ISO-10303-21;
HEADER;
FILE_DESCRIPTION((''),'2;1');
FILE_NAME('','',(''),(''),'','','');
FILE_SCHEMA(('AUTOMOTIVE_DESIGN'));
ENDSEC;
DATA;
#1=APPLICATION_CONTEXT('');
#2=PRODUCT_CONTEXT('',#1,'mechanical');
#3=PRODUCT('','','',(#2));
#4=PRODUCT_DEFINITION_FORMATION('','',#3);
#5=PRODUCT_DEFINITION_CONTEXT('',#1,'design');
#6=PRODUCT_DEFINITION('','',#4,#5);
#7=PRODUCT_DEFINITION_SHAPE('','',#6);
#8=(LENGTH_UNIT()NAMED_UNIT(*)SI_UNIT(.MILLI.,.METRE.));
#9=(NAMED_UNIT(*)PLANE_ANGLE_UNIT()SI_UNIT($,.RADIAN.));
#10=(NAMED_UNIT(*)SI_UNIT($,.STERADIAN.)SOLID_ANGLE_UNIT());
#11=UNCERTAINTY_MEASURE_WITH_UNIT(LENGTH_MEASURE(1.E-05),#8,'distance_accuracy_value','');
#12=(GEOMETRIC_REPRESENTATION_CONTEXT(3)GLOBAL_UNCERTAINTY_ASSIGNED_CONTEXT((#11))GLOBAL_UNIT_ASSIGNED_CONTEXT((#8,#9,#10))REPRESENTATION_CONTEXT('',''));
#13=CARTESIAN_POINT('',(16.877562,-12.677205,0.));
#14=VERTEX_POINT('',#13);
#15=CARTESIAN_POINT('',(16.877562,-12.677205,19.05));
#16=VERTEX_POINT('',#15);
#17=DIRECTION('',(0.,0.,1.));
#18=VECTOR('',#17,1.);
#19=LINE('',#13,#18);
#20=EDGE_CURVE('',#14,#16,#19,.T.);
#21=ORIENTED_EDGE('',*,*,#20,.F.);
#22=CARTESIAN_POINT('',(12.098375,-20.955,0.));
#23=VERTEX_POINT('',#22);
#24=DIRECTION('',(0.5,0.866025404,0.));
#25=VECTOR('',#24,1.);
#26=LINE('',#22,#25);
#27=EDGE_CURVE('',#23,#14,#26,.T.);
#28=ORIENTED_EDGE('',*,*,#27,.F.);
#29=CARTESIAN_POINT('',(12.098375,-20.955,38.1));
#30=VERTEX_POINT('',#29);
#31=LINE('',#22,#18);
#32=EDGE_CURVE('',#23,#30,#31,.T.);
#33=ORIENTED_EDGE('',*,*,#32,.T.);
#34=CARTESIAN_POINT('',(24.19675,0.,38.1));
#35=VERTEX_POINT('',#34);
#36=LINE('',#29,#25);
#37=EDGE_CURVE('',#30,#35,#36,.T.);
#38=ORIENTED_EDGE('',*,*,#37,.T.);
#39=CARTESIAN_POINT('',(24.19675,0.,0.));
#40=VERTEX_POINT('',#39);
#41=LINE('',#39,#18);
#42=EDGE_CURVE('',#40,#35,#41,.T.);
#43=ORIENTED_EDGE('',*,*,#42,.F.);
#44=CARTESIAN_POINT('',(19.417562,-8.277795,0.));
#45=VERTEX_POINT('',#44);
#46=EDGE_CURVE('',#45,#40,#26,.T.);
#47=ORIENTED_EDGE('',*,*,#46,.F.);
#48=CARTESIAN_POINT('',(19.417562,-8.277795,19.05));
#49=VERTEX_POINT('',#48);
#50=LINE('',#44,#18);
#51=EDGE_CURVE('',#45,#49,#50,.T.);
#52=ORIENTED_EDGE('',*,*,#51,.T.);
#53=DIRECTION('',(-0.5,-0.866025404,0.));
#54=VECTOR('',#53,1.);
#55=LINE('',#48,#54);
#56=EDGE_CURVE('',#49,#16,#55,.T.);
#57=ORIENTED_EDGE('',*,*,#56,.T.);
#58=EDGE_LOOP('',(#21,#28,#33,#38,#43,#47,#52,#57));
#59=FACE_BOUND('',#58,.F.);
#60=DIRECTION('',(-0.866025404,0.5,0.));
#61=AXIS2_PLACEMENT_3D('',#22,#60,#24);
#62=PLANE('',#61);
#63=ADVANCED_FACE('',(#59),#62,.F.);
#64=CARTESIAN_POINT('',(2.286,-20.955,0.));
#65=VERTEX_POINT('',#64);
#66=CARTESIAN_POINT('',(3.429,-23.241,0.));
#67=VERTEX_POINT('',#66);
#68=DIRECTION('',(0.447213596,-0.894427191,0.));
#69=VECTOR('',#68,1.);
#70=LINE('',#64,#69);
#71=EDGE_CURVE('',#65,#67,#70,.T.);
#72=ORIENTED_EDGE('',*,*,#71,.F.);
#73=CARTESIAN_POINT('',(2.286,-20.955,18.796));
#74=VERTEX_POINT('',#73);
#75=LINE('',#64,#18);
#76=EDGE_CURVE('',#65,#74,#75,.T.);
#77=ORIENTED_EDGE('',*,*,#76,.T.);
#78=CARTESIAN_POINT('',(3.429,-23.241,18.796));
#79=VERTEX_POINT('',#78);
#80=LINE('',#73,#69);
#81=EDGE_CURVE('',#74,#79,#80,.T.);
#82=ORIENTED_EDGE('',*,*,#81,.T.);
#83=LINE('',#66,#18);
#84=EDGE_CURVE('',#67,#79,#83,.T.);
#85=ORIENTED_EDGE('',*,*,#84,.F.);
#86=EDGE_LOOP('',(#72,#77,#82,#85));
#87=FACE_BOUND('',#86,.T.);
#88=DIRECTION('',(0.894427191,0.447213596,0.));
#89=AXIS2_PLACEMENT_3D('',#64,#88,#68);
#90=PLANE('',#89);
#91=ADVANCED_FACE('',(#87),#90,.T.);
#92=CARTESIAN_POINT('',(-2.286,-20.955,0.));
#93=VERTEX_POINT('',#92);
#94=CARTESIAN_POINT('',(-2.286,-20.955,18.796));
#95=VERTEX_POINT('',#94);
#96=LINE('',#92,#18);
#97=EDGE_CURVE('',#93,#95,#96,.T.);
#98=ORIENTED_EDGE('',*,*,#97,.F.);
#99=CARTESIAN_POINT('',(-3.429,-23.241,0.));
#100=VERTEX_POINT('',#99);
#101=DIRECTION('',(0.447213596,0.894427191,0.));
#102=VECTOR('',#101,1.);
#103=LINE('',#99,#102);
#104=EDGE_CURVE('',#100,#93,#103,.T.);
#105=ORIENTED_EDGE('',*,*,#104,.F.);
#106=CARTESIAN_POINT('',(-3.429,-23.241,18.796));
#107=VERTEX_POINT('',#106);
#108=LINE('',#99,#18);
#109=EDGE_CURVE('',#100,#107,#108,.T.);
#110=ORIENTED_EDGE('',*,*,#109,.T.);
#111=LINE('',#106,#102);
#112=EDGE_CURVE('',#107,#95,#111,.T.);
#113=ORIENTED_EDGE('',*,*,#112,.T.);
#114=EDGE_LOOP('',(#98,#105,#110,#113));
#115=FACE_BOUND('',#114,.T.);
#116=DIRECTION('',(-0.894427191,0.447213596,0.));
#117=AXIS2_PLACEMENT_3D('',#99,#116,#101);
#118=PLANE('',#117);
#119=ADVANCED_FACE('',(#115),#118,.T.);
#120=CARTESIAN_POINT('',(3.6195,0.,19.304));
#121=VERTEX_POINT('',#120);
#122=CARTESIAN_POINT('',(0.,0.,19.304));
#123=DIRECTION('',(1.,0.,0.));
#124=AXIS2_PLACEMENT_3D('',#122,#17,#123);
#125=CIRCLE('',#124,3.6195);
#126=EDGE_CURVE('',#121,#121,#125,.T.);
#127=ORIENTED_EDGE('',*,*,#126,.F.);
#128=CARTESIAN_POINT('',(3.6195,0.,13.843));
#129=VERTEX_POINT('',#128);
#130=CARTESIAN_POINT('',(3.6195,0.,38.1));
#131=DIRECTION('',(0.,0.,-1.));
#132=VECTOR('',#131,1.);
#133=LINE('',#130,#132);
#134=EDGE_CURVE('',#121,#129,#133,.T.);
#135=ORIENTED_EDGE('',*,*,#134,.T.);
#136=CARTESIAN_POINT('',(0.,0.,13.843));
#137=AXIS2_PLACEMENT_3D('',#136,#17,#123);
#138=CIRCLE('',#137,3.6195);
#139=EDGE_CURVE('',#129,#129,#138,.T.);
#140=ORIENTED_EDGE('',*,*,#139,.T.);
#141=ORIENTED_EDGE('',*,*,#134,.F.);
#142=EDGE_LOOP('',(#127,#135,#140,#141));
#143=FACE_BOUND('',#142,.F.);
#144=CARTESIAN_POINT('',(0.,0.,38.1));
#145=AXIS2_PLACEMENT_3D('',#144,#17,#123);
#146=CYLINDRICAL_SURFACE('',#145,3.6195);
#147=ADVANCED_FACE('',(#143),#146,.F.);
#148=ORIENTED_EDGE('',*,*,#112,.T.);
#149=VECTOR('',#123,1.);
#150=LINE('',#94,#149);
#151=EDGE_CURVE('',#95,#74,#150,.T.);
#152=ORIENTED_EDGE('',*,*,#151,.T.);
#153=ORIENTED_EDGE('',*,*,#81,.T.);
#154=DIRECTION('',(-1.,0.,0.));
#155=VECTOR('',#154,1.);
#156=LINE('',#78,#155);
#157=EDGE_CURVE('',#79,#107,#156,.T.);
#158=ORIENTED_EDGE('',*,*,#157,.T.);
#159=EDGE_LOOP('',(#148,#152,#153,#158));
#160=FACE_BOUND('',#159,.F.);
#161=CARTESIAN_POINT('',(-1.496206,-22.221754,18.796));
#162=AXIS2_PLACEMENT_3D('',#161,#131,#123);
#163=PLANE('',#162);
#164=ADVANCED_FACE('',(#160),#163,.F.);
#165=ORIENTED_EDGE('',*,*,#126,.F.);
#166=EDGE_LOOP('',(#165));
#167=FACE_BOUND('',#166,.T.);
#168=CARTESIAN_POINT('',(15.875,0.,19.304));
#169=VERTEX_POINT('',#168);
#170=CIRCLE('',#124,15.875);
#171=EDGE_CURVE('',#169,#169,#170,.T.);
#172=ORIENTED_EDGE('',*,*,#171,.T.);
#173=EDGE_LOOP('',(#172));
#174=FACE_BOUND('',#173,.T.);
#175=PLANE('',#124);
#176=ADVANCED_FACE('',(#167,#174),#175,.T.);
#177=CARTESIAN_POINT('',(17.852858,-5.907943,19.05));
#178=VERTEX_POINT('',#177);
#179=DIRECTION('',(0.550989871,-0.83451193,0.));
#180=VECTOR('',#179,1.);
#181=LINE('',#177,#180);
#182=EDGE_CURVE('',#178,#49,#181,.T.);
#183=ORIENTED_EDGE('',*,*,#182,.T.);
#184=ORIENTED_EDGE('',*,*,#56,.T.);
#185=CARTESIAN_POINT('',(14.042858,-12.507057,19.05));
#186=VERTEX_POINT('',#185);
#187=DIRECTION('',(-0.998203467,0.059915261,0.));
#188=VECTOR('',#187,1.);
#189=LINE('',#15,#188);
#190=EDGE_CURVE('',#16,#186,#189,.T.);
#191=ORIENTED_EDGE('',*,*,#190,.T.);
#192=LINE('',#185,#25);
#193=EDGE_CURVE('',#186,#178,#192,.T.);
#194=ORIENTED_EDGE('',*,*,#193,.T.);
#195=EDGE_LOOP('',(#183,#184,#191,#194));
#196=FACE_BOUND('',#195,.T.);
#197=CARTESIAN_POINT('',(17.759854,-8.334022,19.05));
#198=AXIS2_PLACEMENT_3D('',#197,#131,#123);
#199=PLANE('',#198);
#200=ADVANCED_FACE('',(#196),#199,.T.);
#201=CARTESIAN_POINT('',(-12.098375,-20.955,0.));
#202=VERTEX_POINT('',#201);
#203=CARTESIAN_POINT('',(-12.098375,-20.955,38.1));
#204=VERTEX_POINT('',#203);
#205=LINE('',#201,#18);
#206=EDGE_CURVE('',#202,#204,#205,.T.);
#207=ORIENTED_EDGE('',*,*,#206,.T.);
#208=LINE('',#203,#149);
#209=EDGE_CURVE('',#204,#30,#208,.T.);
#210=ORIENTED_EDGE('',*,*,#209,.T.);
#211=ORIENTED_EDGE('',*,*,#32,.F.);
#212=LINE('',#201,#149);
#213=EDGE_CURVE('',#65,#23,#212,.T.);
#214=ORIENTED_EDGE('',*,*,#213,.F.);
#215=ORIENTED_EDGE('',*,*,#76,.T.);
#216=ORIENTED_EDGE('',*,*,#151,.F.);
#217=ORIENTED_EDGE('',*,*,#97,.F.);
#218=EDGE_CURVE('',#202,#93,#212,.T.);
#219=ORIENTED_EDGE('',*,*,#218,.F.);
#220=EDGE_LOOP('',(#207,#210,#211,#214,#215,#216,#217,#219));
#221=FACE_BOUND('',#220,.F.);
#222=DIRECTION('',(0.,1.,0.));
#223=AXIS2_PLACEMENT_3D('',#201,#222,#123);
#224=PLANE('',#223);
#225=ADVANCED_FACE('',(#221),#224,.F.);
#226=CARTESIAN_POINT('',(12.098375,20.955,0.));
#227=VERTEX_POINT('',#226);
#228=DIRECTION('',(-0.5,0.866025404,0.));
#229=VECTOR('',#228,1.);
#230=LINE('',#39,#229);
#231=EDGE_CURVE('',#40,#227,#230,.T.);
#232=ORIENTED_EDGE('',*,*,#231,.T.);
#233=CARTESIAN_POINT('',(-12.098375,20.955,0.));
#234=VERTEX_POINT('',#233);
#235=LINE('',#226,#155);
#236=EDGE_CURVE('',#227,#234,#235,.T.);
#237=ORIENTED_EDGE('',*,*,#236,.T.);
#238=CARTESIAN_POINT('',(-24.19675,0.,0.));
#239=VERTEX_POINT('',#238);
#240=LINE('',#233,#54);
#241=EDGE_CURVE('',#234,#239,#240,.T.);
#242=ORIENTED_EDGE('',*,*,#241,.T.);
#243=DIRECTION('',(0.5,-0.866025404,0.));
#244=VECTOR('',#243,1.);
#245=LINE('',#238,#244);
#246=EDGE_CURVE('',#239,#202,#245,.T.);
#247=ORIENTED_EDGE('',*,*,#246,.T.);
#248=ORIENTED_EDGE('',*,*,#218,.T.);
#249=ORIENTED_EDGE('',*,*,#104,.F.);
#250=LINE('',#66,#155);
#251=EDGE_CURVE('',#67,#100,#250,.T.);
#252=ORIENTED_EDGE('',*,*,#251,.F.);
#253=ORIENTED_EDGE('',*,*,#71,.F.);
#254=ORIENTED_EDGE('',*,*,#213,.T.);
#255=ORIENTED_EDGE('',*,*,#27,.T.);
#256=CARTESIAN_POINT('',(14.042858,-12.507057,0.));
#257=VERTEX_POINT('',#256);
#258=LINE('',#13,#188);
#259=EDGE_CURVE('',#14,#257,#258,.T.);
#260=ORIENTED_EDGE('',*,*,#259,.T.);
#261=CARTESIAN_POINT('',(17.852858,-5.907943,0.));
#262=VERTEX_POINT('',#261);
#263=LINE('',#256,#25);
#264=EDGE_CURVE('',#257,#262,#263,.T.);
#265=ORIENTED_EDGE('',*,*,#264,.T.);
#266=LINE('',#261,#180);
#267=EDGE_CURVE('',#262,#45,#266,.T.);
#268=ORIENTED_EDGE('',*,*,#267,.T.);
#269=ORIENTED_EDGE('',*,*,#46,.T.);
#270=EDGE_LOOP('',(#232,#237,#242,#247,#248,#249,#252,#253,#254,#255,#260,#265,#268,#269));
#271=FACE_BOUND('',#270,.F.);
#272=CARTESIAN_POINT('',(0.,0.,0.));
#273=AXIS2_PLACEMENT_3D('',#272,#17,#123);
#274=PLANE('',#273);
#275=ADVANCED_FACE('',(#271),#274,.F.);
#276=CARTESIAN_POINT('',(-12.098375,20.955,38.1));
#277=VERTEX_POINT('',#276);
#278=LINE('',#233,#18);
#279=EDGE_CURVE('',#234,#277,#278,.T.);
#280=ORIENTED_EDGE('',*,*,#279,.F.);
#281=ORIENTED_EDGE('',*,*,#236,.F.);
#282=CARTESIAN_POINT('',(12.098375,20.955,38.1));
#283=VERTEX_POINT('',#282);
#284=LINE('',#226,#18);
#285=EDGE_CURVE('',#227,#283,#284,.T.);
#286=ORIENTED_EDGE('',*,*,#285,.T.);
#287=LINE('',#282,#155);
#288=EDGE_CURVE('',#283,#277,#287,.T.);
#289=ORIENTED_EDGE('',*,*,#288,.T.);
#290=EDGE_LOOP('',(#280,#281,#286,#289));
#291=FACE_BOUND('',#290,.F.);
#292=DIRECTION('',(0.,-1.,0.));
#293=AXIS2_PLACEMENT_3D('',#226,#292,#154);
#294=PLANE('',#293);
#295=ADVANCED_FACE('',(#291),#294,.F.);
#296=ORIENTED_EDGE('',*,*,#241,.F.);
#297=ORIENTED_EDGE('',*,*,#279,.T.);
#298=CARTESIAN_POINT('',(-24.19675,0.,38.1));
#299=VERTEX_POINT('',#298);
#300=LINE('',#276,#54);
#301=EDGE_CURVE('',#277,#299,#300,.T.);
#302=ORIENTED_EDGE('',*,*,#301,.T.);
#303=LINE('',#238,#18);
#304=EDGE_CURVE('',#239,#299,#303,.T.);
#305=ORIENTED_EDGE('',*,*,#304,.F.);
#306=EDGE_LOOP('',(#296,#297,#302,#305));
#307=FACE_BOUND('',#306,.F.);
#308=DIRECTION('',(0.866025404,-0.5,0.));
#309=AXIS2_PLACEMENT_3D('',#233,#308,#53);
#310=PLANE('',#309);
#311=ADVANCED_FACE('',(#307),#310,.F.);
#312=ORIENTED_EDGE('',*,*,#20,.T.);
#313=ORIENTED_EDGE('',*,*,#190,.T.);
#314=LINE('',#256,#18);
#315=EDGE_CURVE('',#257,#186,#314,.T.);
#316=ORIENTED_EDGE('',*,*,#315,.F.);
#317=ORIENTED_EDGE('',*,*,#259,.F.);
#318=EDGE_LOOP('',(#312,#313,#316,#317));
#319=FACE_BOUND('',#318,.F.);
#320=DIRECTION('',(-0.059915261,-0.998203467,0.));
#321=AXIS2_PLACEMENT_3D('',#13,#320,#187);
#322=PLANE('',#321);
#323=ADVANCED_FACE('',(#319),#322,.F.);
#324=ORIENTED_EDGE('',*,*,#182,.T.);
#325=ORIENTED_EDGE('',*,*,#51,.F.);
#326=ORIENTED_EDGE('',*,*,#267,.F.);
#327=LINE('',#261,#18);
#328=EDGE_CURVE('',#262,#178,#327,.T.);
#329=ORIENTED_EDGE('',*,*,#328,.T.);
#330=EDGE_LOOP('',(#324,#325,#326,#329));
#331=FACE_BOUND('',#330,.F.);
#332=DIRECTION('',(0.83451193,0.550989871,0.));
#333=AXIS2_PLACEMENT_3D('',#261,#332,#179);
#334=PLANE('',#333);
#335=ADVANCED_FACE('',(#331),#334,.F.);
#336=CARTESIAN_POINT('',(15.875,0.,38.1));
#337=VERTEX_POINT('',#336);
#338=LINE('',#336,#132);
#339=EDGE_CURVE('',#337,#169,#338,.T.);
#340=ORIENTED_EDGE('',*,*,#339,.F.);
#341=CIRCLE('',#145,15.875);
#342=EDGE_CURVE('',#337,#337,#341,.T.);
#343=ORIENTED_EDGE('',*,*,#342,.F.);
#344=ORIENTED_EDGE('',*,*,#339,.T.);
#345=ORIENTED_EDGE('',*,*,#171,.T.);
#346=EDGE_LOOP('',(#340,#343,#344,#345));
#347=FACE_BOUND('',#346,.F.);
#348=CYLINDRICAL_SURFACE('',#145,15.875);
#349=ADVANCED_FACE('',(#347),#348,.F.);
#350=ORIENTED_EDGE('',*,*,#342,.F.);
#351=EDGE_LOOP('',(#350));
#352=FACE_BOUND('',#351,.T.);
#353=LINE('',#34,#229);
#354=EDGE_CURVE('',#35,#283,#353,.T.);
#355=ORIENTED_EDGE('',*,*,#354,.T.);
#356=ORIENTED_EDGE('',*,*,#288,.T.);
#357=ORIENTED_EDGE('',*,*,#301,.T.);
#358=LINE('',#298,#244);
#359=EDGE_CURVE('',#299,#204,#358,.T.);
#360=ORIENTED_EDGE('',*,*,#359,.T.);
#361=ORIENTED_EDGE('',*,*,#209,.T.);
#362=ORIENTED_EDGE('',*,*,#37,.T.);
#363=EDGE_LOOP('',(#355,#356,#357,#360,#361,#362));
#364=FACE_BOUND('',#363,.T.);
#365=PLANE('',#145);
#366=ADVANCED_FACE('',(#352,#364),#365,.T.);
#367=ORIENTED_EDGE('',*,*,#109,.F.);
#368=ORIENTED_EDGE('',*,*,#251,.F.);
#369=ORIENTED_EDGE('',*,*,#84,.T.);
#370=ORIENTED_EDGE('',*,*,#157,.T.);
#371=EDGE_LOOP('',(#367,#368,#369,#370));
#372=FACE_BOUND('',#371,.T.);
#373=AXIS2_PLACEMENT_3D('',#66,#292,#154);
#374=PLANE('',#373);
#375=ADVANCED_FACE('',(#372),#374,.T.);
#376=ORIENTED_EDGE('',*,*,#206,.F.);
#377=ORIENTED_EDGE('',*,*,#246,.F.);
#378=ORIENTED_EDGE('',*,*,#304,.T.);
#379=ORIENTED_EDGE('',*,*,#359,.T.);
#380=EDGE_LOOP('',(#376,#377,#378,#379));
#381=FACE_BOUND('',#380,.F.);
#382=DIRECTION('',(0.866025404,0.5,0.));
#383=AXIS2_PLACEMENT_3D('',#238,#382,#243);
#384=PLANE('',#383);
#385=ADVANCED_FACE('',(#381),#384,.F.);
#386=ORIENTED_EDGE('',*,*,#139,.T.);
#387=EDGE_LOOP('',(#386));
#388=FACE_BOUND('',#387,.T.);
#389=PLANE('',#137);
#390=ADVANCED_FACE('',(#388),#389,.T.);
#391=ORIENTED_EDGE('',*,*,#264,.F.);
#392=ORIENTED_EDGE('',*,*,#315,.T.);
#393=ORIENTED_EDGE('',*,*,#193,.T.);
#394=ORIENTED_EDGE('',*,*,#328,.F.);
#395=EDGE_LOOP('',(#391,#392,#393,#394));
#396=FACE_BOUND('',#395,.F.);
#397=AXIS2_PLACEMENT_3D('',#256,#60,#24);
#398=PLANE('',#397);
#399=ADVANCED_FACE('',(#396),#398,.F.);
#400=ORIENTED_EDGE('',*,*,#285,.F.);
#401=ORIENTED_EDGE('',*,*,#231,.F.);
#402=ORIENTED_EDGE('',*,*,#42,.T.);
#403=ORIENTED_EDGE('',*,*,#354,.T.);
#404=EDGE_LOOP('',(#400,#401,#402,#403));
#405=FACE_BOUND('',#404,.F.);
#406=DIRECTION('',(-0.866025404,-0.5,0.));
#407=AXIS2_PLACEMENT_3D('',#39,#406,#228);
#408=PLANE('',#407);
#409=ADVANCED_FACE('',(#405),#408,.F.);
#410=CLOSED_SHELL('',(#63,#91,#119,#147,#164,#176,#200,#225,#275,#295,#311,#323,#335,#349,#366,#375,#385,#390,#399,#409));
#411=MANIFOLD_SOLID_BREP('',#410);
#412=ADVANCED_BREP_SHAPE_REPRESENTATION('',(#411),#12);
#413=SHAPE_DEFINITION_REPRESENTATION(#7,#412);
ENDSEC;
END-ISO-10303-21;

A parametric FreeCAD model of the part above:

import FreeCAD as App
import Part
import Sketcher

V = App.Vector
Q = App.Units.Quantity


def add_polygon(sketch, points):
    """Adds a closed chain of lines whose ends are joined by coincident constraints."""
    first, n = sketch.GeometryCount, len(points)
    for a, b in zip(points, points[1:] + points[:1]):
        sketch.addGeometry(Part.LineSegment(App.Vector(*a, 0), App.Vector(*b, 0)), False)
    for i in range(n):
        sketch.addConstraint(Sketcher.Constraint("Coincident", first + i, 2, first + (i + 1) % n, 1))

doc = App.newDocument("Part")
body = doc.addObject("PartDesign::Body", "Body")

# Sketch on XY plane
sketch1 = body.newObject("Sketcher::SketchObject", "Sketch")
sketch1.AttachmentSupport = (doc.getObject("XY_Plane"), [""])
sketch1.MapMode = "FlatFace"
add_polygon(sketch1, [(-12, -21), (12, -21), (24, 0), (12, 21), (-12, 21), (-24, 0)])  # lines 0-5
sketch1.addConstraint(Sketcher.Constraint("Horizontal", 0))
sketch1.addConstraint(Sketcher.Constraint("Horizontal", 3))
sketch1.addConstraint(Sketcher.Constraint("Symmetric", 0, 2, 3, 2, -1, 1))
sketch1.addConstraint(Sketcher.Constraint("Symmetric", 1, 2, 4, 2, -1, 1))
sketch1.addConstraint(Sketcher.Constraint("PointOnObject", 1, 2, -1))
sketch1.addConstraint(Sketcher.Constraint("Parallel", 2, 5))
sketch1.addConstraint(Sketcher.Constraint("Vertical", 0, 2, 2, 2))
sketch1.addConstraint(Sketcher.Constraint("Angle", 1, Q("60 deg")))
sketch1.addConstraint(Sketcher.Constraint("DistanceY", 0, 2, 2, 2, Q("1.65 in")))
sketch1.addConstraint(Sketcher.Constraint("DistanceX", 0, 1, 0, 2, Q("24.19675 mm")))
pad1 = body.newObject("PartDesign::Pad", "Pad")
pad1.Profile = sketch1
pad1.Length = Q("1.5 in")

# Sketch on XY plane
sketch2 = body.newObject("Sketcher::SketchObject", "Sketch001")
sketch2.AttachmentSupport = (doc.getObject("XY_Plane"), [""])
sketch2.MapMode = "FlatFace"
sketch2.AttachmentOffset = App.Placement(V(0, 0, 1.5 * 25.4), App.Rotation())
add_polygon(sketch2, [(-11, -20), (11, -20), (23, 0), (11, 20), (-11, 20), (-23, 0)])  # lines 0-5
sketch2.addConstraint(Sketcher.Constraint("Horizontal", 0))
sketch2.addConstraint(Sketcher.Constraint("Horizontal", 3))
sketch2.addConstraint(Sketcher.Constraint("Symmetric", 0, 2, 3, 2, -1, 1))
sketch2.addConstraint(Sketcher.Constraint("Symmetric", 1, 2, 4, 2, -1, 1))
sketch2.addConstraint(Sketcher.Constraint("PointOnObject", 1, 2, -1))
sketch2.addConstraint(Sketcher.Constraint("Parallel", 2, 5))
sketch2.addConstraint(Sketcher.Constraint("Vertical", 0, 2, 2, 2))
sketch2.addConstraint(Sketcher.Constraint("Angle", 1, Q("60 deg")))
sketch2.addConstraint(Sketcher.Constraint("DistanceY", 0, 2, 2, 2, Q("1.55 in")))
sketch2.addConstraint(Sketcher.Constraint("DistanceX", 0, 1, 0, 2, Q("22.73028 mm")))
pocket1 = body.newObject("PartDesign::Pocket", "Pocket")
pocket1.Profile = sketch2
pocket1.Length = Q("0.74 in")

# Sketch on XY plane
sketch3 = body.newObject("Sketcher::SketchObject", "Sketch002")
sketch3.AttachmentSupport = (doc.getObject("XY_Plane"), [""])
sketch3.MapMode = "FlatFace"
sketch3.AttachmentOffset = App.Placement(V(0, 0, 1.5 * 25.4), App.Rotation())
add_polygon(sketch3, [(-23, 0), (-11, -20), (11, -20), (23, 0), (11, 20), (-11, 20)])  # lines 0-5
sketch3.addGeometry(Part.Circle(V(0, 0, 0), V(0, 0, 1), 16), False)  # 6
sketch3.addConstraint(Sketcher.Constraint("Horizontal", 1))
sketch3.addConstraint(Sketcher.Constraint("Horizontal", 4))
sketch3.addConstraint(Sketcher.Constraint("Coincident", 6, 3, -1, 1))
sketch3.addConstraint(Sketcher.Constraint("Symmetric", 0, 2, 3, 2, -1, 1))
sketch3.addConstraint(Sketcher.Constraint("Symmetric", 2, 2, 5, 2, -1, 1))
sketch3.addConstraint(Sketcher.Constraint("PointOnObject", 2, 2, -1))
sketch3.addConstraint(Sketcher.Constraint("Parallel", 2, 5))
sketch3.addConstraint(Sketcher.Constraint("Vertical", 1, 2, 3, 2))
sketch3.addConstraint(Sketcher.Constraint("Diameter", 6, Q("1.25 in")))
sketch3.addConstraint(Sketcher.Constraint("Angle", 0, Q("-60 deg")))
sketch3.addConstraint(Sketcher.Constraint("DistanceY", 1, 2, 3, 2, Q("1.55 in")))
sketch3.addConstraint(Sketcher.Constraint("DistanceX", 1, 1, 1, 2, Q("22.73028 mm")))
pad2 = body.newObject("PartDesign::Pad", "Pad001")
pad2.Profile = sketch3
pad2.Length = Q("0.74 in")
pad2.Reversed = True

# Sketch on XY plane
sketch4 = body.newObject("Sketcher::SketchObject", "Sketch003")
sketch4.AttachmentSupport = (doc.getObject("XY_Plane"), [""])
sketch4.MapMode = "FlatFace"
sketch4.AttachmentOffset = App.Placement(V(0, 0, 1.5 * 25.4), App.Rotation())
sketch4.addGeometry(Part.Circle(V(0, 0, 0), V(0, 0, 1), 3.6), False)
sketch4.addConstraint(Sketcher.Constraint("Coincident", 0, 3, -1, 1))
sketch4.addConstraint(Sketcher.Constraint("Diameter", 0, Q("0.285 in")))
pocket2 = body.newObject("PartDesign::Pocket", "Pocket001")
pocket2.Profile = sketch4
pocket2.Length = Q("0.955 in")

# Sketch on XY plane
sketch5 = body.newObject("Sketcher::SketchObject", "Sketch004")
sketch5.AttachmentSupport = (doc.getObject("XY_Plane"), [""])
sketch5.MapMode = "FlatFace"
add_polygon(sketch5, [(-2.3, -21), (2.3, -21), (3.4, -23.2), (-3.4, -23.2)])  # lines 0-3
sketch5.addConstraint(Sketcher.Constraint("Horizontal", 0))
sketch5.addConstraint(Sketcher.Constraint("Horizontal", 2))
sketch5.addConstraint(Sketcher.Constraint("Equal", 1, 3))
sketch5.addConstraint(Sketcher.Constraint("DistanceX", 0, 1, 0, 2, Q("0.18 in")))
sketch5.addConstraint(Sketcher.Constraint("DistanceX", 2, 2, 2, 1, Q("0.27 in")))
sketch5.addConstraint(Sketcher.Constraint("DistanceX", -1, 1, 0, 2, Q("0.09 in")))
sketch5.addConstraint(Sketcher.Constraint("DistanceY", 1, 2, 0, 2, Q("0.09 in")))
sketch5.addConstraint(Sketcher.Constraint("DistanceY", 0, 2, -1, 1, Q("0.825 in")))
pad3 = body.newObject("PartDesign::Pad", "Pad002")
pad3.Profile = sketch5
pad3.Length = Q("0.74 in")

# Sketch on XY plane
sketch6 = body.newObject("Sketcher::SketchObject", "Sketch005")
sketch6.AttachmentSupport = (doc.getObject("XY_Plane"), [""])
sketch6.MapMode = "FlatFace"
add_polygon(sketch6, [(19.4, -8.3), (16.9, -12.7), (14, -12.5), (17.9, -5.9)])  # lines 0-3
sketch6.addConstraint(Sketcher.Constraint("Parallel", 0, 2))
sketch6.addConstraint(Sketcher.Constraint("Equal", 1, 3))
sketch6.addConstraint(Sketcher.Constraint("Angle", 0, Q("-120 deg")))
sketch6.addConstraint(Sketcher.Constraint("Distance", 0, Q("0.2 in")))
sketch6.addConstraint(Sketcher.Constraint("Distance", 2, Q("0.3 in")))
sketch6.addConstraint(Sketcher.Constraint("DistanceY", 0, 2, 2, 2, Q("6.769261 mm")))
sketch6.addConstraint(Sketcher.Constraint("DistanceX", -1, 1, 0, 2, Q("16.877562 mm")))
sketch6.addConstraint(Sketcher.Constraint("DistanceY", 0, 2, -1, 1, Q("12.677205 mm")))
pocket3 = body.newObject("PartDesign::Pocket", "Pocket002")
pocket3.Profile = sketch6
pocket3.Length = Q("0.75 in")
pocket3.Reversed = True

doc.recompute()
